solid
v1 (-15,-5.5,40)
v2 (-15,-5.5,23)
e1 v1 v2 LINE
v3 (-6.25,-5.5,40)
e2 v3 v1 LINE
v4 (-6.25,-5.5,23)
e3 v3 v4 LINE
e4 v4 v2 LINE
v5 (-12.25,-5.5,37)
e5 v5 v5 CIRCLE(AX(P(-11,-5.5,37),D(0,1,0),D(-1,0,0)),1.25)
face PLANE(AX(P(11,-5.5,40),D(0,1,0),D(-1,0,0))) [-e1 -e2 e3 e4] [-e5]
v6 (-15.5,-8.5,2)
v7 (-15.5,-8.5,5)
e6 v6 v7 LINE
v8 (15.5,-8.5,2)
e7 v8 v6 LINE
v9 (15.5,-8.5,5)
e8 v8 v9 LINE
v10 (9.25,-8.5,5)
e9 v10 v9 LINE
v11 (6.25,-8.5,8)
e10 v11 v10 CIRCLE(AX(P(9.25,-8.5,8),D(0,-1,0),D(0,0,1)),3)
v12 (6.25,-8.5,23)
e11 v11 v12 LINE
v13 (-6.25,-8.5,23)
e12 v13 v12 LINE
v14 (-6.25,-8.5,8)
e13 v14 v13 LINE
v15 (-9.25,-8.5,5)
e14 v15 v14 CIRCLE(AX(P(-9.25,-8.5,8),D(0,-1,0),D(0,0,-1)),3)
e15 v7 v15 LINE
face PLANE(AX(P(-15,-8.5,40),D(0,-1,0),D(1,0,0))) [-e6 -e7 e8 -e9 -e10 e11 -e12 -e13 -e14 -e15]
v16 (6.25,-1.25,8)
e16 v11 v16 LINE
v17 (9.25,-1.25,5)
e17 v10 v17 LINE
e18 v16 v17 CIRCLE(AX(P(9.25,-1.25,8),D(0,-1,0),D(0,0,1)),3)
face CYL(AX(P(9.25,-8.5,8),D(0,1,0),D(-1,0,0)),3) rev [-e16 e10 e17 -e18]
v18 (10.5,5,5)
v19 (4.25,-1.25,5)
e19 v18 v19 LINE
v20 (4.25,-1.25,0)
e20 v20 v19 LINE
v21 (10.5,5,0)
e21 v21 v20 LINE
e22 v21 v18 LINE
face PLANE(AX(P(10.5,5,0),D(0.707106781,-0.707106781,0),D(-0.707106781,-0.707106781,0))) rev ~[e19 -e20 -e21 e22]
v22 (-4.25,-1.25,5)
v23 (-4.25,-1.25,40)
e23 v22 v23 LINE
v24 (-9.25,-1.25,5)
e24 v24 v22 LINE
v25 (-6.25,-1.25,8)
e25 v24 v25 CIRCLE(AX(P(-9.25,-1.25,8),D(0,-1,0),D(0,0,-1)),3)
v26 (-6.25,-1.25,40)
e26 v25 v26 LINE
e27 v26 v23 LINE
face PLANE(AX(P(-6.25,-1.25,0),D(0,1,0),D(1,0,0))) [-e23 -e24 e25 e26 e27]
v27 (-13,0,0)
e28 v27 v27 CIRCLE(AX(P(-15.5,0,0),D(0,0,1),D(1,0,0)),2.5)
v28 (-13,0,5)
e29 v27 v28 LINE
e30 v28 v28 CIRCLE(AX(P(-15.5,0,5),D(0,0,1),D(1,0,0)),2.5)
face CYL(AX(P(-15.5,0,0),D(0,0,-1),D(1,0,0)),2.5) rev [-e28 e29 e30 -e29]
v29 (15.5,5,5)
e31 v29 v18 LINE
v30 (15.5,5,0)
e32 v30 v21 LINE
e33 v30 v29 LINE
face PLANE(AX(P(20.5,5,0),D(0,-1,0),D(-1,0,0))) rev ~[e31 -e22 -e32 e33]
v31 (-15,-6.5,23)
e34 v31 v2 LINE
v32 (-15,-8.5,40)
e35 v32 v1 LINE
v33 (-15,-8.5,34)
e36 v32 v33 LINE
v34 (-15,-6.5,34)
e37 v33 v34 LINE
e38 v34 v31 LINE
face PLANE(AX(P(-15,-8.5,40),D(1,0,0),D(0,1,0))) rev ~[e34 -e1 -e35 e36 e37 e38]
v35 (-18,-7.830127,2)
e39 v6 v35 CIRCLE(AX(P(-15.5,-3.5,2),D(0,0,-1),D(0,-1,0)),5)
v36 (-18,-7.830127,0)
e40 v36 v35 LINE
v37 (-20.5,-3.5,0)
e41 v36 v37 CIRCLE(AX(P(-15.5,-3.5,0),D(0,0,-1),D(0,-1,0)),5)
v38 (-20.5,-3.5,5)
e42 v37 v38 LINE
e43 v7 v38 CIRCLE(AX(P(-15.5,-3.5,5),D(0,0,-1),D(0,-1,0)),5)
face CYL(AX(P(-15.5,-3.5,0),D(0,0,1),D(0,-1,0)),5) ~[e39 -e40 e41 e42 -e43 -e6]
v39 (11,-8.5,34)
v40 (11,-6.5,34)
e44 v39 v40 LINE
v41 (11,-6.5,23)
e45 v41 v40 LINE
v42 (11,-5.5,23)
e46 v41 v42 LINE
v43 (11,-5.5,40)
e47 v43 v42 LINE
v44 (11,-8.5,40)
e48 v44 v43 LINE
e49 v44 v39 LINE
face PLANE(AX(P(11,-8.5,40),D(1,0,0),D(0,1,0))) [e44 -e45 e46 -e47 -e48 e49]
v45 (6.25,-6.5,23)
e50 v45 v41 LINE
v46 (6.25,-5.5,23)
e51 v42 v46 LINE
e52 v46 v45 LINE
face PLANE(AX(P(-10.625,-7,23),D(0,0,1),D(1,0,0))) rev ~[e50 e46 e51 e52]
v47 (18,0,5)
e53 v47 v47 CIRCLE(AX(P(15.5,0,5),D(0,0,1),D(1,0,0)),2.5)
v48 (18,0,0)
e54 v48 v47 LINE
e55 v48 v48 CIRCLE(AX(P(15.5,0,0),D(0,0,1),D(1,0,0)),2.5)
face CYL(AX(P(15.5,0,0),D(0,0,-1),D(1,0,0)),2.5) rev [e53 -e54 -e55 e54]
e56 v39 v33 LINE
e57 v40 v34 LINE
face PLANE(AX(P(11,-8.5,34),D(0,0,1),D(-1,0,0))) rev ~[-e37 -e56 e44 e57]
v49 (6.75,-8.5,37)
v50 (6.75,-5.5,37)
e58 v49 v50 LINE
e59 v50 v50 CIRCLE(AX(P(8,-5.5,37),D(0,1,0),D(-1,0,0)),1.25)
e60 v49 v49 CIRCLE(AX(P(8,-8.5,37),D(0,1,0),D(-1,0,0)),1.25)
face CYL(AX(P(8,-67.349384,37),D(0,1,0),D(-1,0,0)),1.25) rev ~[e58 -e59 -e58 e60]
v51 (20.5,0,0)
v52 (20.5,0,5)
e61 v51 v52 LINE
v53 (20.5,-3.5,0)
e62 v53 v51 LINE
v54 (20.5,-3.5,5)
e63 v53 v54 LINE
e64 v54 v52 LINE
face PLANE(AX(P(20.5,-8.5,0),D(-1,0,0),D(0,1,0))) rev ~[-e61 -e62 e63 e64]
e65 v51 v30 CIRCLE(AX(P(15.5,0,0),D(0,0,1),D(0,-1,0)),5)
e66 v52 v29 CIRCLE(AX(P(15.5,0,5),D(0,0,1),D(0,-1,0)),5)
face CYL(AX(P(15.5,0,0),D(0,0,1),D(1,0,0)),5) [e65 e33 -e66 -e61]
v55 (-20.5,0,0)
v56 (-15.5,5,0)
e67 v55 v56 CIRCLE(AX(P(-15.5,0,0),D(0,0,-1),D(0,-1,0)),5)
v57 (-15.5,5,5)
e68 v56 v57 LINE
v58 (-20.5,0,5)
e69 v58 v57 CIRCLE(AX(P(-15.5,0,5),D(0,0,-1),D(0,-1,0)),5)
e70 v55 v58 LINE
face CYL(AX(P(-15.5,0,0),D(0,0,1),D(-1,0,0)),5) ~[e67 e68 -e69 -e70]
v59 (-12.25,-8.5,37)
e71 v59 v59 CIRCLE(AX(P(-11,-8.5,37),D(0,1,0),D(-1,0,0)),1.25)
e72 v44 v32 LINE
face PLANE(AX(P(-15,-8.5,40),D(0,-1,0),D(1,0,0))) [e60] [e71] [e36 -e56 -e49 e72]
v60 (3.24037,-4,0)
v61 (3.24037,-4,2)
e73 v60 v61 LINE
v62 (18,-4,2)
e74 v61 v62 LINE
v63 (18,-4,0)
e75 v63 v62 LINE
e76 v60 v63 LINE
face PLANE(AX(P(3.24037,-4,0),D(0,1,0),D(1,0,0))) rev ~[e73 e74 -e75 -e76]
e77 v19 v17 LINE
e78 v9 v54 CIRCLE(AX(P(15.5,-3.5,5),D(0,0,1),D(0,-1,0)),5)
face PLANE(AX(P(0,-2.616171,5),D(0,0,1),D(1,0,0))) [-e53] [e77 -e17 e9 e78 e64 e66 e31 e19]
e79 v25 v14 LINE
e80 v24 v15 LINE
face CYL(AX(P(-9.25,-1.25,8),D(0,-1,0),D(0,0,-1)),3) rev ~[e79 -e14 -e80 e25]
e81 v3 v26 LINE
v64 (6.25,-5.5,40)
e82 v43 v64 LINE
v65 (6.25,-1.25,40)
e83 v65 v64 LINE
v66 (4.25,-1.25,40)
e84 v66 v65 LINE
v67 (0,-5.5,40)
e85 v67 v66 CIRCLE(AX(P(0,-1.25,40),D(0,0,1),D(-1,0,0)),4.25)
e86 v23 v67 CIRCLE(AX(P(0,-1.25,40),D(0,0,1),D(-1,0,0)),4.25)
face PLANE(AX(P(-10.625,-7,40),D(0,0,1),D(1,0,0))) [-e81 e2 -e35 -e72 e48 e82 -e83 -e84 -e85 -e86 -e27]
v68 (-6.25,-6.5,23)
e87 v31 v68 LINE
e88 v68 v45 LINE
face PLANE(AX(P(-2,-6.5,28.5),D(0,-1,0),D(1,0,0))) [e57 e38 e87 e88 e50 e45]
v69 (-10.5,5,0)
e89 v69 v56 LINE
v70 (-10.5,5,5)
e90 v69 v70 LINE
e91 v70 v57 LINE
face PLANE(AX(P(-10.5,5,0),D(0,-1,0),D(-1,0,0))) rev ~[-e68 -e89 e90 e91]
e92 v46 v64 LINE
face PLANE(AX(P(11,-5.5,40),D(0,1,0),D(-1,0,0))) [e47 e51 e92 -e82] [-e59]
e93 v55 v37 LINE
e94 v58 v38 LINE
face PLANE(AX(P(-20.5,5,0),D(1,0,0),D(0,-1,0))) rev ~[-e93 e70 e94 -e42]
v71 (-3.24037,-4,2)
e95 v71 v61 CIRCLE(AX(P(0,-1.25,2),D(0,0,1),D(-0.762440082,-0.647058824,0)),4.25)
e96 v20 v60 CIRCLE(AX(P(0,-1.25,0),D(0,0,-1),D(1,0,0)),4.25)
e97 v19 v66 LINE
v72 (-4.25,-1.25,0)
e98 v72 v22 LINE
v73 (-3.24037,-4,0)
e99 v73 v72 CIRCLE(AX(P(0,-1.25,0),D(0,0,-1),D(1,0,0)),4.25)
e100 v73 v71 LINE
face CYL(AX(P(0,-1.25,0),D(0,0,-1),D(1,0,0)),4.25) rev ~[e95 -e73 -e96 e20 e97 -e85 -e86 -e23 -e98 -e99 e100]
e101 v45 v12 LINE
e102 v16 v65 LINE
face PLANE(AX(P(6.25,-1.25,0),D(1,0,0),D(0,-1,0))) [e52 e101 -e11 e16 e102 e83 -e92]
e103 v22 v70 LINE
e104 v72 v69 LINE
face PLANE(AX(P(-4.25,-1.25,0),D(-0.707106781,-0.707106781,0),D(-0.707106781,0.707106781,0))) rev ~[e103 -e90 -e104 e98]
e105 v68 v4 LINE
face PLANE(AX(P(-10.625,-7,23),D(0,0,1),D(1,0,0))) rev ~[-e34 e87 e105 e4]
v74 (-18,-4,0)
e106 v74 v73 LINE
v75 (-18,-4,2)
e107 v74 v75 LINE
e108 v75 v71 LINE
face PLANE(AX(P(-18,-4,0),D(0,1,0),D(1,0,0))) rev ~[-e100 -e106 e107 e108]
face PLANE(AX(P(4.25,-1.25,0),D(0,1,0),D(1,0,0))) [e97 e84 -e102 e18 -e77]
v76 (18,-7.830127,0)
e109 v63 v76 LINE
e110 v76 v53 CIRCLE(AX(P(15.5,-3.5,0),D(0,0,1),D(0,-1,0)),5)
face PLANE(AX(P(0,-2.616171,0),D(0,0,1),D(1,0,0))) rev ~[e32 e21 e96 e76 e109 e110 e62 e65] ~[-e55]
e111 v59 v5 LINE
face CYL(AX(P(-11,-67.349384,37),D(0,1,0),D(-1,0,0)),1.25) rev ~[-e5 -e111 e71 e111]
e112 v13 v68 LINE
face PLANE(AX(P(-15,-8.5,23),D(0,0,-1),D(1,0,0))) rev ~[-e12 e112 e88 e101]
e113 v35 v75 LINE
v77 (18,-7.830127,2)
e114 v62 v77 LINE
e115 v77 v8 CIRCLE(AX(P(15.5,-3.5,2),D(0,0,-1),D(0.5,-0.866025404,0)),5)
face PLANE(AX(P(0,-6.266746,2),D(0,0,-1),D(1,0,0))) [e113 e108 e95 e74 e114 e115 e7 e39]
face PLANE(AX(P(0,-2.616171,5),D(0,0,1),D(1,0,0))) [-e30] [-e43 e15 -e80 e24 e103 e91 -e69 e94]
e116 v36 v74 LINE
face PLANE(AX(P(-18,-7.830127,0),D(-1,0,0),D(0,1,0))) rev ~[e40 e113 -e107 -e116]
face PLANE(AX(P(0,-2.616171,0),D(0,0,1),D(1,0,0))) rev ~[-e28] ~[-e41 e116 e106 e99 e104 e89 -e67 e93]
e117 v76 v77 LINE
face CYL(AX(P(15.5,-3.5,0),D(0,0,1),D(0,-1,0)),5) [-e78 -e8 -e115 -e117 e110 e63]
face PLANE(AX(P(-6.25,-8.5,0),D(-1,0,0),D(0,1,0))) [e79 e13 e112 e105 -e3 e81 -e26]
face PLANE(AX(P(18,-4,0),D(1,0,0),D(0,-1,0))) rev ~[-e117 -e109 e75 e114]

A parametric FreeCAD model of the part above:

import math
import FreeCAD as App
import Part
import Sketcher

V = App.Vector


def edges_at(feature, points):
    """Names of the edges that pass closest to the given points."""
    edges = feature.Shape.Edges
    near = lambda p: min(range(len(edges)), key=lambda i: edges[i].distToShape(Part.Vertex(*p))[0])
    return sorted({f"Edge{near(p) + 1}" for p in points})

doc = App.newDocument("Part")
body = doc.addObject("PartDesign::Body", "Body")

sketch1 = body.newObject("Sketcher::SketchObject", "Sketch")
sketch1.AttachmentSupport = (doc.getObject("XY_Plane"), [""])
sketch1.MapMode = "FlatFace"
sketch1.addGeometry([
    Part.LineSegment(V(10.5, 5, 0), V(4.2, -1.2, 0)),
    Part.ArcOfCircle(Part.Circle(V(0, -1.2, 0), V(0, 0, 1), 4.2), math.radians(180), math.radians(360)),
    Part.LineSegment(V(-4.2, -1.2, 0), V(-10.5, 5, 0)),
    Part.LineSegment(V(-10.5, 5, 0), V(-20.5, 5, 0)),
    Part.LineSegment(V(-20.5, 5, 0), V(-20.5, -8.5, 0)),
    Part.LineSegment(V(-20.5, -8.5, 0), V(20.5, -8.5, 0)),
    Part.LineSegment(V(20.5, -8.5, 0), V(20.5, 5, 0)),
    Part.LineSegment(V(20.5, 5, 0), V(10.5, 5, 0)),
    Part.Circle(V(-15.5, 0, 0), V(0, 0, 1), 2.5),
    Part.Circle(V(15.5, 0, 0), V(0, 0, 1), 2.5),
], False)
sketch1.addConstraint([
    Sketcher.Constraint("Coincident", 0, 2, 1, 2),
    Sketcher.Constraint("Coincident", 1, 1, 2, 1),
    Sketcher.Constraint("Coincident", 2, 2, 3, 1),
    Sketcher.Constraint("Coincident", 3, 2, 4, 1),
    Sketcher.Constraint("Coincident", 4, 2, 5, 1),
    Sketcher.Constraint("Coincident", 5, 2, 6, 1),
    Sketcher.Constraint("Coincident", 6, 2, 7, 1),
    Sketcher.Constraint("Coincident", 7, 2, 0, 1),
    Sketcher.Constraint("Horizontal", 3),
    Sketcher.Constraint("Vertical", 4),
    Sketcher.Constraint("Horizontal", 5),
    Sketcher.Constraint("Vertical", 6),
    Sketcher.Constraint("Horizontal", 7),
    Sketcher.Constraint("Equal", 8, 9),
    Sketcher.Constraint("Symmetric", 8, 3, 9, 3, -1, 1),
    Sketcher.Constraint("Symmetric", 0, 2, 1, 1, -2),
    Sketcher.Constraint("Symmetric", 3, 2, 6, 2, -2),
    Sketcher.Constraint("PointOnObject", 8, 3, -1),
    Sketcher.Constraint("Perpendicular", 0, 2),
    Sketcher.Constraint("Horizontal", 1, 3, 0, 2),
    Sketcher.Constraint("Equal", 3, 7),
    Sketcher.Constraint("Diameter", 8, 5.0),
    Sketcher.Constraint("DistanceX", 3, 2, 3, 1, 10.0),
    Sketcher.Constraint("DistanceX", 5, 1, 5, 2, 41.0),
    Sketcher.Constraint("Radius", 1, 4.25),
    Sketcher.Constraint("DistanceY", 4, 2, 4, 1, 13.5),
    Sketcher.Constraint("DistanceY", -1, 1, 2, 2, 5.0),
    Sketcher.Constraint("DistanceX", 8, 3, 9, 3, 31.0),
])
pad1 = body.newObject("PartDesign::Pad", "Pad")
pad1.Profile = sketch1
pad1.Length = 5

sketch2 = body.newObject("Sketcher::SketchObject", "Sketch001")
sketch2.AttachmentSupport = (doc.getObject("XY_Plane"), [""])
sketch2.MapMode = "FlatFace"
sketch2.addGeometry([
    Part.LineSegment(V(-6.2, -1.2, 0), V(-4.2, -1.2, 0)),
    Part.ArcOfCircle(Part.Circle(V(0, -1.2, 0), V(0, 0, 1), 4.2), math.radians(180), math.radians(360)),
    Part.LineSegment(V(4.2, -1.2, 0), V(6.2, -1.2, 0)),
    Part.LineSegment(V(6.2, -1.2, 0), V(6.2, -8.5, 0)),
    Part.LineSegment(V(6.2, -8.5, 0), V(-6.2, -8.5, 0)),
    Part.LineSegment(V(-6.2, -8.5, 0), V(-6.2, -1.2, 0)),
], False)
sketch2.addConstraint([
    Sketcher.Constraint("Coincident", 0, 2, 1, 1),
    Sketcher.Constraint("Coincident", 1, 2, 2, 1),
    Sketcher.Constraint("Coincident", 2, 2, 3, 1),
    Sketcher.Constraint("Coincident", 3, 2, 4, 1),
    Sketcher.Constraint("Coincident", 4, 2, 5, 1),
    Sketcher.Constraint("Coincident", 5, 2, 0, 1),
    Sketcher.Constraint("Horizontal", 0),
    Sketcher.Constraint("Horizontal", 2),
    Sketcher.Constraint("Vertical", 3),
    Sketcher.Constraint("Horizontal", 4),
    Sketcher.Constraint("Vertical", 5),
    Sketcher.Constraint("Symmetric", 0, 2, 1, 2, -2),
    Sketcher.Constraint("Horizontal", 1, 3, 0, 2),
    Sketcher.Constraint("Equal", 0, 2),
    Sketcher.Constraint("DistanceX", 0, 1, 0, 2, 2.0),
    Sketcher.Constraint("Radius", 1, 4.25),
    Sketcher.Constraint("DistanceY", 3, 2, 3, 1, 7.25),
    Sketcher.Constraint("DistanceY", 3, 2, -1, 1, 8.5),
])
pad2 = body.newObject("PartDesign::Pad", "Pad001")
pad2.Profile = sketch2
pad2.Length = 40

sketch3 = body.newObject("Sketcher::SketchObject", "Sketch002")
sketch3.AttachmentSupport = (doc.getObject("XY_Plane"), [""])
sketch3.MapMode = "FlatFace"
sketch3.AttachmentOffset = App.Placement(V(0, 0, 40), App.Rotation())
sketch3.addGeometry([
    Part.LineSegment(V(-15, -5.5, 0), V(-15, -8.5, 0)),
    Part.LineSegment(V(-15, -8.5, 0), V(11, -8.5, 0)),
    Part.LineSegment(V(11, -8.5, 0), V(11, -5.5, 0)),
    Part.LineSegment(V(11, -5.5, 0), V(-15, -5.5, 0)),
], False)
sketch3.addConstraint([
    Sketcher.Constraint("Coincident", 0, 2, 1, 1),
    Sketcher.Constraint("Coincident", 1, 2, 2, 1),
    Sketcher.Constraint("Coincident", 2, 2, 3, 1),
    Sketcher.Constraint("Coincident", 3, 2, 0, 1),
    Sketcher.Constraint("Vertical", 0),
    Sketcher.Constraint("Horizontal", 1),
    Sketcher.Constraint("Vertical", 2),
    Sketcher.Constraint("Horizontal", 3),
    Sketcher.Constraint("DistanceX", 1, 1, 1, 2, 26.0),
    Sketcher.Constraint("DistanceY", 0, 2, 0, 1, 3.0),
    Sketcher.Constraint("DistanceX", 0, 2, -1, 1, 15.0),
    Sketcher.Constraint("DistanceY", 0, 2, -1, 1, 8.5),
])
pad3 = body.newObject("PartDesign::Pad", "Pad002")
pad3.Profile = sketch3
pad3.Length = 17
pad3.Reversed = True

sketch4 = body.newObject("Sketcher::SketchObject", "Sketch003")
sketch4.AttachmentSupport = (doc.getObject("XZ_Plane"), [""])
sketch4.MapMode = "FlatFace"
sketch4.AttachmentOffset = App.Placement(V(0, 0, 8.5), App.Rotation())
sketch4.addGeometry([
    Part.LineSegment(V(11, 34, 0), V(-15, 34, 0)),
    Part.LineSegment(V(-15, 34, 0), V(-15, 23, 0)),
    Part.LineSegment(V(-15, 23, 0), V(11, 23, 0)),
    Part.LineSegment(V(11, 23, 0), V(11, 34, 0)),
], False)
sketch4.addConstraint([
    Sketcher.Constraint("Coincident", 0, 2, 1, 1),
    Sketcher.Constraint("Coincident", 1, 2, 2, 1),
    Sketcher.Constraint("Coincident", 2, 2, 3, 1),
    Sketcher.Constraint("Coincident", 3, 2, 0, 1),
    Sketcher.Constraint("Horizontal", 0),
    Sketcher.Constraint("Vertical", 1),
    Sketcher.Constraint("Horizontal", 2),
    Sketcher.Constraint("Vertical", 3),
    Sketcher.Constraint("DistanceX", 0, 2, 0, 1, 26.0),
    Sketcher.Constraint("DistanceY", 1, 2, 1, 1, 11.0),
    Sketcher.Constraint("DistanceX", 0, 2, -1, 1, 15.0),
    Sketcher.Constraint("DistanceY", -1, 1, 0, 2, 34.0),
])
pocket1 = body.newObject("PartDesign::Pocket", "Pocket")
pocket1.Profile = sketch4
pocket1.Length = 2

sketch5 = body.newObject("Sketcher::SketchObject", "Sketch004")
sketch5.AttachmentSupport = (doc.getObject("XZ_Plane"), [""])
sketch5.MapMode = "FlatFace"
sketch5.AttachmentOffset = App.Placement(V(0, 0, 8.5), App.Rotation())
sketch5.addGeometry([
    Part.Circle(V(-11, 37, 0), V(0, 0, 1), 1.2),
    Part.Circle(V(8, 37, 0), V(0, 0, 1), 1.2),
], False)
sketch5.addConstraint([
    Sketcher.Constraint("Equal", 0, 1),
    Sketcher.Constraint("Horizontal", 0, 3, 1, 3),
    Sketcher.Constraint("Diameter", 0, 2.5),
    Sketcher.Constraint("DistanceX", 0, 3, -1, 1, 11.0),
    Sketcher.Constraint("DistanceY", -1, 1, 0, 3, 37.0),
    Sketcher.Constraint("DistanceX", -1, 1, 1, 3, 8.0),
])
doc.recompute()
hole = body.newObject("PartDesign::Hole", "Hole")
hole.Profile = sketch5
hole.ThreadType = "None"
hole.Diameter = 2.5
hole.DepthType = "ThroughAll"
doc.recompute()

fillet = body.newObject("PartDesign::Fillet", "Fillet")
fillet.Base = (hole, edges_at(hole, [
    (20.5, -8.5, 2.5),
    (-20.5, 5, 2.5),
    (-20.5, -8.5, 2.5),
    (20.5, 5, 2.5),
]))
fillet.Radius = 5

sketch6 = body.newObject("Sketcher::SketchObject", "Sketch005")
sketch6.AttachmentSupport = (doc.getObject("XY_Plane"), [""])
sketch6.MapMode = "FlatFace"
sketch6.addGeometry([
    Part.ArcOfCircle(Part.Circle(V(-15.5, -3.5, 0), V(0, 0, 1), 5), math.radians(-120), math.radians(-90)),
    Part.LineSegment(V(-18, -7.8, 0), V(-18, -4, 0)),
    Part.LineSegment(V(-18, -4, 0), V(-3.2, -4, 0)),
    Part.ArcOfCircle(Part.Circle(V(0, -1.2, 0), V(0, 0, 1), 4.2), math.radians(-140), math.radians(-40)),
    Part.LineSegment(V(3.2, -4, 0), V(18, -4, 0)),
    Part.LineSegment(V(18, -4, 0), V(18, -7.8, 0)),
    Part.ArcOfCircle(Part.Circle(V(15.5, -3.5, 0), V(0, 0, 1), 5), math.radians(-90), math.radians(-60)),
    Part.LineSegment(V(15.5, -8.5, 0), V(-15.5, -8.5, 0)),
], False)
sketch6.addConstraint([
    Sketcher.Constraint("Coincident", 0, 1, 1, 1),
    Sketcher.Constraint("Coincident", 1, 2, 2, 1),
    Sketcher.Constraint("Coincident", 2, 2, 3, 1),
    Sketcher.Constraint("Coincident", 3, 2, 4, 1),
    Sketcher.Constraint("Coincident", 4, 2, 5, 1),
    Sketcher.Constraint("Coincident", 5, 2, 6, 2),
    Sketcher.Constraint("Tangent", 6, 1, 7, 1),
    Sketcher.Constraint("Tangent", 7, 2, 0, 2),
    Sketcher.Constraint("Vertical", 1),
    Sketcher.Constraint("Horizontal", 2),
    Sketcher.Constraint("Horizontal", 4),
    Sketcher.Constraint("Vertical", 5),
    Sketcher.Constraint("Horizontal", 7),
    Sketcher.Constraint("Equal", 0, 6),
    Sketcher.Constraint("Symmetric", 2, 2, 3, 2, -2),
    Sketcher.Constraint("Symmetric", 0, 1, 5, 2, -2),
    Sketcher.Constraint("Radius", 0, 5.0),
    Sketcher.Constraint("DistanceX", 7, 2, 7, 1, 31.0),
    Sketcher.Constraint("Radius", 3, 4.25),
    Sketcher.Constraint("DistanceX", 0, 1, -1, 1, 18.0),
    Sketcher.Constraint("DistanceY", 1, 2, -1, 1, 4.0),
    Sketcher.Constraint("DistanceY", 0, 3, -1, 1, 3.5),
    Sketcher.Constraint("DistanceY", 3, 3, -1, 1, 1.25),
])
pocket2 = body.newObject("PartDesign::Pocket", "Pocket001")
pocket2.Profile = sketch6
pocket2.Length = 2
pocket2.Reversed = True
doc.recompute()

fillet2 = body.newObject("PartDesign::Fillet", "Fillet001")
fillet2.Base = (pocket2, edges_at(pocket2, [(6.25, -4.875, 5), (-6.25, -4.875, 5)]))
fillet2.Radius = 3

doc.recompute()
